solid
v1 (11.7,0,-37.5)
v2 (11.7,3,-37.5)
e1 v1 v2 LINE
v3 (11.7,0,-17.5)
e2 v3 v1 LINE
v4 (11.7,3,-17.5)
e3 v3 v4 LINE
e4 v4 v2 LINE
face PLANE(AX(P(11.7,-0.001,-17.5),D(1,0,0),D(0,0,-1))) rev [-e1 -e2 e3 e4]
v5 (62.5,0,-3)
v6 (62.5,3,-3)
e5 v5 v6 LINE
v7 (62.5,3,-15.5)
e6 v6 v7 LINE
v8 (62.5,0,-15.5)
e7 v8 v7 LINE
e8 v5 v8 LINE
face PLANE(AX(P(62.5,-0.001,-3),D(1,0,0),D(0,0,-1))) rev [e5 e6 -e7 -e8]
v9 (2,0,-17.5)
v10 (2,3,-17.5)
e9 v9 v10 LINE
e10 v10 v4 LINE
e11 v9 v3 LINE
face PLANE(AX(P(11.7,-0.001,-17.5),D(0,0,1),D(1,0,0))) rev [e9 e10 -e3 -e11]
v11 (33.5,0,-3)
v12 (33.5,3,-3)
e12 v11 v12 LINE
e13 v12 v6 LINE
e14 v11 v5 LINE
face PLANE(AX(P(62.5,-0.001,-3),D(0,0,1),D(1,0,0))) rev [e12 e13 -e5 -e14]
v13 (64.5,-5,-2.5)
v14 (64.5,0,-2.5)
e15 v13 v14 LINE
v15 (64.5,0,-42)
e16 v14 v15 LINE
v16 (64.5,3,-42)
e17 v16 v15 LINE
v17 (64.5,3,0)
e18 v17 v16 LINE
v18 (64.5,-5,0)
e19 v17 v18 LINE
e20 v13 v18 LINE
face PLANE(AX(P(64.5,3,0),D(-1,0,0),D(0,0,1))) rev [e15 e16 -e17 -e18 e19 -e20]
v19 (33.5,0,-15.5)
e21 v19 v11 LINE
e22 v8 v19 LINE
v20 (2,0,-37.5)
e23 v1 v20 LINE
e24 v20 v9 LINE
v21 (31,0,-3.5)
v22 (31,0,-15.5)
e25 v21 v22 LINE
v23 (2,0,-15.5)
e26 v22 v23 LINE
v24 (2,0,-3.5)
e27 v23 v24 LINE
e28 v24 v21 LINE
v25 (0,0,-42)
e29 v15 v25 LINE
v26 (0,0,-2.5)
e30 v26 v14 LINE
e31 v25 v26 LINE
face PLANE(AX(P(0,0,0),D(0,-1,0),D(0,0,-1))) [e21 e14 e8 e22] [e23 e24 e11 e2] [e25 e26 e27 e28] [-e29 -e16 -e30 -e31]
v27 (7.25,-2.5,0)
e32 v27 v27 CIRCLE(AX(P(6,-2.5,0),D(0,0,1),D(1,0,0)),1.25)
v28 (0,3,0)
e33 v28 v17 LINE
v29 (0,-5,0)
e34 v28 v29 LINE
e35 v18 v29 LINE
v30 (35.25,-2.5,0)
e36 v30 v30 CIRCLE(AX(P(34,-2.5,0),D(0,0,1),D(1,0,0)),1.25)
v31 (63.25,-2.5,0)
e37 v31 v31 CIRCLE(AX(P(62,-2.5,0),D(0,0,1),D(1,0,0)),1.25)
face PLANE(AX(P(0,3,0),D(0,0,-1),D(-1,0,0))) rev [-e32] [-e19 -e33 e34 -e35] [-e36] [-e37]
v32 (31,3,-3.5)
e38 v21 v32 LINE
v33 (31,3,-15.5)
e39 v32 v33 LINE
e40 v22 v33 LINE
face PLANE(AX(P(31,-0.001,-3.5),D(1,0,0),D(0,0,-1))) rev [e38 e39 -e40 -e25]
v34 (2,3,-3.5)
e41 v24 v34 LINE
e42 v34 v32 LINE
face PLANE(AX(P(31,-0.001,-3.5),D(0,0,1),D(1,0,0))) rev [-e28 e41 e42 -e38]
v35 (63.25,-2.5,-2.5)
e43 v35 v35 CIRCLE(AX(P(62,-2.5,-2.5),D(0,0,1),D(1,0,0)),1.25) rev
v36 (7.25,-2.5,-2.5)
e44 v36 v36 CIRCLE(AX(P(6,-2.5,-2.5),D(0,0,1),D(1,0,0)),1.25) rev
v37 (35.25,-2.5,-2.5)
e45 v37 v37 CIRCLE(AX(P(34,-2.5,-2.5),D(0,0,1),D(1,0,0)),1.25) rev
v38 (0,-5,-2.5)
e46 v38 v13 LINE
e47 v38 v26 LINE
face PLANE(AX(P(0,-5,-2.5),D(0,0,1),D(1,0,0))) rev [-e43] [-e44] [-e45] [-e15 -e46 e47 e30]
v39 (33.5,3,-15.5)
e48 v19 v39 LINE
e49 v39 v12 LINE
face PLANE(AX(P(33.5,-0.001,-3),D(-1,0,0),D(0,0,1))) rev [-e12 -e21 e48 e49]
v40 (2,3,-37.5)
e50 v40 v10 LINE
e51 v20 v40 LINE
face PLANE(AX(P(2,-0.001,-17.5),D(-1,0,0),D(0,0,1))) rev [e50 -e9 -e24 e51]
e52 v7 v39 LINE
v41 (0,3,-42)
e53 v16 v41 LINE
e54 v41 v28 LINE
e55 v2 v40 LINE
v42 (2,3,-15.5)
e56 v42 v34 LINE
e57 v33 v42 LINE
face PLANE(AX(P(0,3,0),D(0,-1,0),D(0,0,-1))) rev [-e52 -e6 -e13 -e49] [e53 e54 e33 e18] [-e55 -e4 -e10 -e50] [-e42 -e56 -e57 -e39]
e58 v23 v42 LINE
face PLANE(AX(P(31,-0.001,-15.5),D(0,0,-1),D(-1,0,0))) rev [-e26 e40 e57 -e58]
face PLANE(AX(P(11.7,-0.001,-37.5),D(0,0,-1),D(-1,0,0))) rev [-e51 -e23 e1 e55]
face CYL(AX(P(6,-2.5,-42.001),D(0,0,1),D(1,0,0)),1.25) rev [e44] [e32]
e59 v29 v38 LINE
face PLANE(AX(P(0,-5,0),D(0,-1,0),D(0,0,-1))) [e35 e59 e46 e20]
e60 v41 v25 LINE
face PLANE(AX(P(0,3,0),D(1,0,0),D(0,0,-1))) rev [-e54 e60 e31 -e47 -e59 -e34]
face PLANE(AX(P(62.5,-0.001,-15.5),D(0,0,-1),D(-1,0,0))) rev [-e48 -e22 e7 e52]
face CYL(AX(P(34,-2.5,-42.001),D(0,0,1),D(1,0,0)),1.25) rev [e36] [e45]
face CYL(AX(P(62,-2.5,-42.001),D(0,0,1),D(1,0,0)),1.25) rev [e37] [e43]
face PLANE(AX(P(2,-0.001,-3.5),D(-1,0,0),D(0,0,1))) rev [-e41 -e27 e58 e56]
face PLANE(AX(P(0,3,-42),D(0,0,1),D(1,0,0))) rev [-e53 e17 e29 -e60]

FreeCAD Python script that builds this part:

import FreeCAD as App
import Part
import Sketcher


def add_polygon(sketch, points):
    """Adds a closed chain of lines whose ends are joined by coincident constraints."""
    first, n = sketch.GeometryCount, len(points)
    for a, b in zip(points, points[1:] + points[:1]):
        sketch.addGeometry(Part.LineSegment(App.Vector(*a, 0), App.Vector(*b, 0)), False)
    for i in range(n):
        sketch.addConstraint(Sketcher.Constraint("Coincident", first + i, 2, first + (i + 1) % n, 1))

doc = App.newDocument("Part")
body = doc.addObject("PartDesign::Body", "Body")

sketch1 = doc.addObject("Sketcher::SketchObject", "Sketch")
body.addObject(sketch1)
sketch1.AttachmentSupport = (doc.XZ_Plane, [""])
sketch1.MapMode = "FlatFace"
add_polygon(sketch1, [(0, -42), (0, 0), (64, 0), (64, -42)])
sketch1.addConstraint(Sketcher.Constraint("Vertical", 0))
sketch1.addConstraint(Sketcher.Constraint("Horizontal", 1))
sketch1.addConstraint(Sketcher.Constraint("Vertical", 2))
sketch1.addConstraint(Sketcher.Constraint("Horizontal", 3))
sketch1.addConstraint(Sketcher.Constraint("Coincident", 0, 2, -1, 1))
sketch1.addConstraint(Sketcher.Constraint("DistanceY", 0, 1, 0, 2, 42.0))
sketch1.addConstraint(Sketcher.Constraint("DistanceX", 1, 1, 1, 2, 64.5))
pad1 = doc.addObject("PartDesign::Pad", "Pad")
body.addObject(pad1)
pad1.Profile = sketch1
pad1.Length = 3
pad1.Reversed = True

sketch2 = doc.addObject("Sketcher::SketchObject", "Sketch001")
body.addObject(sketch2)
sketch2.AttachmentSupport = (doc.XZ_Plane, [""])
sketch2.MapMode = "FlatFace"
sketch2.AttachmentOffset = App.Placement(App.Vector(0, 0, -3), App.Rotation())
add_polygon(sketch2, [(34, -16), (34, -3), (62, -3), (62, -16)])
sketch2.addConstraint(Sketcher.Constraint("Vertical", 0))
sketch2.addConstraint(Sketcher.Constraint("Horizontal", 1))
sketch2.addConstraint(Sketcher.Constraint("Vertical", 2))
sketch2.addConstraint(Sketcher.Constraint("Horizontal", 3))
sketch2.addConstraint(Sketcher.Constraint("DistanceX", 1, 1, 1, 2, 29.0))
sketch2.addConstraint(Sketcher.Constraint("DistanceY", 0, 1, 0, 2, 12.5))
sketch2.addConstraint(Sketcher.Constraint("DistanceY", 0, 2, -1, 1, 3.0))
sketch2.addConstraint(Sketcher.Constraint("DistanceX", -1, 1, 0, 2, 33.5))
pocket1 = doc.addObject("PartDesign::Pocket", "Pocket")
body.addObject(pocket1)
pocket1.Profile = sketch2
pocket1.Type = "UpToFirst"
pocket1.Reversed = True

sketch3 = doc.addObject("Sketcher::SketchObject", "Sketch002")
body.addObject(sketch3)
sketch3.AttachmentSupport = (doc.XZ_Plane, [""])
sketch3.MapMode = "FlatFace"
sketch3.AttachmentOffset = App.Placement(App.Vector(0, 0, -3), App.Rotation())
add_polygon(sketch3, [(2, -16), (2, -4), (31, -4), (31, -16)])
sketch3.addConstraint(Sketcher.Constraint("Vertical", 0))
sketch3.addConstraint(Sketcher.Constraint("Horizontal", 1))
sketch3.addConstraint(Sketcher.Constraint("Vertical", 2))
sketch3.addConstraint(Sketcher.Constraint("Horizontal", 3))
sketch3.addConstraint(Sketcher.Constraint("DistanceX", 1, 1, 1, 2, 29.0))
sketch3.addConstraint(Sketcher.Constraint("DistanceY", 0, 1, 0, 2, 12.0))
sketch3.addConstraint(Sketcher.Constraint("DistanceX", -1, 1, 0, 2, 2.0))
sketch3.addConstraint(Sketcher.Constraint("DistanceY", 0, 2, -1, 1, 3.5))
pocket2 = doc.addObject("PartDesign::Pocket", "Pocket001")
body.addObject(pocket2)
pocket2.Profile = sketch3
pocket2.Type = "UpToFirst"
pocket2.Reversed = True

sketch4 = doc.addObject("Sketcher::SketchObject", "Sketch003")
body.addObject(sketch4)
sketch4.AttachmentSupport = (doc.XZ_Plane, [""])
sketch4.MapMode = "FlatFace"
sketch4.AttachmentOffset = App.Placement(App.Vector(0, 0, -3), App.Rotation())
add_polygon(sketch4, [(2, -38), (2, -18), (12, -18), (12, -38)])
sketch4.addConstraint(Sketcher.Constraint("Vertical", 0))
sketch4.addConstraint(Sketcher.Constraint("Horizontal", 1))
sketch4.addConstraint(Sketcher.Constraint("Vertical", 2))
sketch4.addConstraint(Sketcher.Constraint("Horizontal", 3))
sketch4.addConstraint(Sketcher.Constraint("DistanceY", 0, 1, 0, 2, 20.0))
sketch4.addConstraint(Sketcher.Constraint("DistanceX", 1, 1, 1, 2, 9.7))
sketch4.addConstraint(Sketcher.Constraint("DistanceX", -1, 1, 0, 2, 2.0))
sketch4.addConstraint(Sketcher.Constraint("DistanceY", 0, 2, -1, 1, 17.5))
pocket3 = doc.addObject("PartDesign::Pocket", "Pocket002")
body.addObject(pocket3)
pocket3.Profile = sketch4
pocket3.Type = "UpToFirst"
pocket3.Reversed = True

sketch5 = doc.addObject("Sketcher::SketchObject", "Sketch004")
body.addObject(sketch5)
sketch5.AttachmentSupport = (doc.XZ_Plane, [""])
sketch5.MapMode = "FlatFace"
add_polygon(sketch5, [(0, 0), (0, -2.5), (64.5, -2.5), (64.5, 0)])
sketch5.addConstraint(Sketcher.Constraint("Vertical", 0))
sketch5.addConstraint(Sketcher.Constraint("Horizontal", 1))
sketch5.addConstraint(Sketcher.Constraint("Vertical", 2))
sketch5.addConstraint(Sketcher.Constraint("Horizontal", 3))
sketch5.addConstraint(Sketcher.Constraint("Coincident", 3, 2, -1, 1))
sketch5.addConstraint(Sketcher.Constraint("DistanceX", 1, 1, 1, 2, 64.5))
sketch5.addConstraint(Sketcher.Constraint("DistanceY", 0, 2, 0, 1, 2.5))
pad2 = doc.addObject("PartDesign::Pad", "Pad001")
body.addObject(pad2)
pad2.Profile = sketch5
pad2.Length = 5

sketch6 = doc.addObject("Sketcher::SketchObject", "Sketch005")
body.addObject(sketch6)
sketch6.AttachmentSupport = (doc.XY_Plane, [""])
sketch6.MapMode = "FlatFace"
sketch6.addGeometry(Part.Circle(App.Vector(62, -2.5, 0), App.Vector(0, 0, 1), 1.2), False)
sketch6.addConstraint(Sketcher.Constraint("Diameter", 0, 2.5))
sketch6.addConstraint(Sketcher.Constraint("DistanceX", -1, 1, 0, 3, 62.0))
sketch6.addConstraint(Sketcher.Constraint("DistanceY", 0, 3, -1, 1, 2.5))
pocket4 = doc.addObject("PartDesign::Pocket", "Pocket003")
body.addObject(pocket4)
pocket4.Profile = sketch6
pocket4.Type = "UpToFirst"

sketch7 = doc.addObject("Sketcher::SketchObject", "Sketch006")
body.addObject(sketch7)
sketch7.AttachmentSupport = (doc.XY_Plane, [""])
sketch7.MapMode = "FlatFace"
sketch7.addGeometry(Part.Circle(App.Vector(6, -2.5, 0), App.Vector(0, 0, 1), 1.2), False)
sketch7.addConstraint(Sketcher.Constraint("Diameter", 0, 2.5))
sketch7.addConstraint(Sketcher.Constraint("DistanceX", -1, 1, 0, 3, 6.0))
sketch7.addConstraint(Sketcher.Constraint("DistanceY", 0, 3, -1, 1, 2.5))
pocket5 = doc.addObject("PartDesign::Pocket", "Pocket004")
body.addObject(pocket5)
pocket5.Profile = sketch7
pocket5.Type = "UpToFirst"

sketch8 = doc.addObject("Sketcher::SketchObject", "Sketch007")
body.addObject(sketch8)
sketch8.AttachmentSupport = (doc.XY_Plane, [""])
sketch8.MapMode = "FlatFace"
sketch8.addGeometry(Part.Circle(App.Vector(34, -2.5, 0), App.Vector(0, 0, 1), 1.2), False)
sketch8.addConstraint(Sketcher.Constraint("Diameter", 0, 2.5))
sketch8.addConstraint(Sketcher.Constraint("DistanceX", -1, 1, 0, 3, 34.0))
sketch8.addConstraint(Sketcher.Constraint("DistanceY", 0, 3, -1, 1, 2.5))
pocket6 = doc.addObject("PartDesign::Pocket", "Pocket005")
body.addObject(pocket6)
pocket6.Profile = sketch8
pocket6.Type = "UpToFirst"

doc.recompute()
